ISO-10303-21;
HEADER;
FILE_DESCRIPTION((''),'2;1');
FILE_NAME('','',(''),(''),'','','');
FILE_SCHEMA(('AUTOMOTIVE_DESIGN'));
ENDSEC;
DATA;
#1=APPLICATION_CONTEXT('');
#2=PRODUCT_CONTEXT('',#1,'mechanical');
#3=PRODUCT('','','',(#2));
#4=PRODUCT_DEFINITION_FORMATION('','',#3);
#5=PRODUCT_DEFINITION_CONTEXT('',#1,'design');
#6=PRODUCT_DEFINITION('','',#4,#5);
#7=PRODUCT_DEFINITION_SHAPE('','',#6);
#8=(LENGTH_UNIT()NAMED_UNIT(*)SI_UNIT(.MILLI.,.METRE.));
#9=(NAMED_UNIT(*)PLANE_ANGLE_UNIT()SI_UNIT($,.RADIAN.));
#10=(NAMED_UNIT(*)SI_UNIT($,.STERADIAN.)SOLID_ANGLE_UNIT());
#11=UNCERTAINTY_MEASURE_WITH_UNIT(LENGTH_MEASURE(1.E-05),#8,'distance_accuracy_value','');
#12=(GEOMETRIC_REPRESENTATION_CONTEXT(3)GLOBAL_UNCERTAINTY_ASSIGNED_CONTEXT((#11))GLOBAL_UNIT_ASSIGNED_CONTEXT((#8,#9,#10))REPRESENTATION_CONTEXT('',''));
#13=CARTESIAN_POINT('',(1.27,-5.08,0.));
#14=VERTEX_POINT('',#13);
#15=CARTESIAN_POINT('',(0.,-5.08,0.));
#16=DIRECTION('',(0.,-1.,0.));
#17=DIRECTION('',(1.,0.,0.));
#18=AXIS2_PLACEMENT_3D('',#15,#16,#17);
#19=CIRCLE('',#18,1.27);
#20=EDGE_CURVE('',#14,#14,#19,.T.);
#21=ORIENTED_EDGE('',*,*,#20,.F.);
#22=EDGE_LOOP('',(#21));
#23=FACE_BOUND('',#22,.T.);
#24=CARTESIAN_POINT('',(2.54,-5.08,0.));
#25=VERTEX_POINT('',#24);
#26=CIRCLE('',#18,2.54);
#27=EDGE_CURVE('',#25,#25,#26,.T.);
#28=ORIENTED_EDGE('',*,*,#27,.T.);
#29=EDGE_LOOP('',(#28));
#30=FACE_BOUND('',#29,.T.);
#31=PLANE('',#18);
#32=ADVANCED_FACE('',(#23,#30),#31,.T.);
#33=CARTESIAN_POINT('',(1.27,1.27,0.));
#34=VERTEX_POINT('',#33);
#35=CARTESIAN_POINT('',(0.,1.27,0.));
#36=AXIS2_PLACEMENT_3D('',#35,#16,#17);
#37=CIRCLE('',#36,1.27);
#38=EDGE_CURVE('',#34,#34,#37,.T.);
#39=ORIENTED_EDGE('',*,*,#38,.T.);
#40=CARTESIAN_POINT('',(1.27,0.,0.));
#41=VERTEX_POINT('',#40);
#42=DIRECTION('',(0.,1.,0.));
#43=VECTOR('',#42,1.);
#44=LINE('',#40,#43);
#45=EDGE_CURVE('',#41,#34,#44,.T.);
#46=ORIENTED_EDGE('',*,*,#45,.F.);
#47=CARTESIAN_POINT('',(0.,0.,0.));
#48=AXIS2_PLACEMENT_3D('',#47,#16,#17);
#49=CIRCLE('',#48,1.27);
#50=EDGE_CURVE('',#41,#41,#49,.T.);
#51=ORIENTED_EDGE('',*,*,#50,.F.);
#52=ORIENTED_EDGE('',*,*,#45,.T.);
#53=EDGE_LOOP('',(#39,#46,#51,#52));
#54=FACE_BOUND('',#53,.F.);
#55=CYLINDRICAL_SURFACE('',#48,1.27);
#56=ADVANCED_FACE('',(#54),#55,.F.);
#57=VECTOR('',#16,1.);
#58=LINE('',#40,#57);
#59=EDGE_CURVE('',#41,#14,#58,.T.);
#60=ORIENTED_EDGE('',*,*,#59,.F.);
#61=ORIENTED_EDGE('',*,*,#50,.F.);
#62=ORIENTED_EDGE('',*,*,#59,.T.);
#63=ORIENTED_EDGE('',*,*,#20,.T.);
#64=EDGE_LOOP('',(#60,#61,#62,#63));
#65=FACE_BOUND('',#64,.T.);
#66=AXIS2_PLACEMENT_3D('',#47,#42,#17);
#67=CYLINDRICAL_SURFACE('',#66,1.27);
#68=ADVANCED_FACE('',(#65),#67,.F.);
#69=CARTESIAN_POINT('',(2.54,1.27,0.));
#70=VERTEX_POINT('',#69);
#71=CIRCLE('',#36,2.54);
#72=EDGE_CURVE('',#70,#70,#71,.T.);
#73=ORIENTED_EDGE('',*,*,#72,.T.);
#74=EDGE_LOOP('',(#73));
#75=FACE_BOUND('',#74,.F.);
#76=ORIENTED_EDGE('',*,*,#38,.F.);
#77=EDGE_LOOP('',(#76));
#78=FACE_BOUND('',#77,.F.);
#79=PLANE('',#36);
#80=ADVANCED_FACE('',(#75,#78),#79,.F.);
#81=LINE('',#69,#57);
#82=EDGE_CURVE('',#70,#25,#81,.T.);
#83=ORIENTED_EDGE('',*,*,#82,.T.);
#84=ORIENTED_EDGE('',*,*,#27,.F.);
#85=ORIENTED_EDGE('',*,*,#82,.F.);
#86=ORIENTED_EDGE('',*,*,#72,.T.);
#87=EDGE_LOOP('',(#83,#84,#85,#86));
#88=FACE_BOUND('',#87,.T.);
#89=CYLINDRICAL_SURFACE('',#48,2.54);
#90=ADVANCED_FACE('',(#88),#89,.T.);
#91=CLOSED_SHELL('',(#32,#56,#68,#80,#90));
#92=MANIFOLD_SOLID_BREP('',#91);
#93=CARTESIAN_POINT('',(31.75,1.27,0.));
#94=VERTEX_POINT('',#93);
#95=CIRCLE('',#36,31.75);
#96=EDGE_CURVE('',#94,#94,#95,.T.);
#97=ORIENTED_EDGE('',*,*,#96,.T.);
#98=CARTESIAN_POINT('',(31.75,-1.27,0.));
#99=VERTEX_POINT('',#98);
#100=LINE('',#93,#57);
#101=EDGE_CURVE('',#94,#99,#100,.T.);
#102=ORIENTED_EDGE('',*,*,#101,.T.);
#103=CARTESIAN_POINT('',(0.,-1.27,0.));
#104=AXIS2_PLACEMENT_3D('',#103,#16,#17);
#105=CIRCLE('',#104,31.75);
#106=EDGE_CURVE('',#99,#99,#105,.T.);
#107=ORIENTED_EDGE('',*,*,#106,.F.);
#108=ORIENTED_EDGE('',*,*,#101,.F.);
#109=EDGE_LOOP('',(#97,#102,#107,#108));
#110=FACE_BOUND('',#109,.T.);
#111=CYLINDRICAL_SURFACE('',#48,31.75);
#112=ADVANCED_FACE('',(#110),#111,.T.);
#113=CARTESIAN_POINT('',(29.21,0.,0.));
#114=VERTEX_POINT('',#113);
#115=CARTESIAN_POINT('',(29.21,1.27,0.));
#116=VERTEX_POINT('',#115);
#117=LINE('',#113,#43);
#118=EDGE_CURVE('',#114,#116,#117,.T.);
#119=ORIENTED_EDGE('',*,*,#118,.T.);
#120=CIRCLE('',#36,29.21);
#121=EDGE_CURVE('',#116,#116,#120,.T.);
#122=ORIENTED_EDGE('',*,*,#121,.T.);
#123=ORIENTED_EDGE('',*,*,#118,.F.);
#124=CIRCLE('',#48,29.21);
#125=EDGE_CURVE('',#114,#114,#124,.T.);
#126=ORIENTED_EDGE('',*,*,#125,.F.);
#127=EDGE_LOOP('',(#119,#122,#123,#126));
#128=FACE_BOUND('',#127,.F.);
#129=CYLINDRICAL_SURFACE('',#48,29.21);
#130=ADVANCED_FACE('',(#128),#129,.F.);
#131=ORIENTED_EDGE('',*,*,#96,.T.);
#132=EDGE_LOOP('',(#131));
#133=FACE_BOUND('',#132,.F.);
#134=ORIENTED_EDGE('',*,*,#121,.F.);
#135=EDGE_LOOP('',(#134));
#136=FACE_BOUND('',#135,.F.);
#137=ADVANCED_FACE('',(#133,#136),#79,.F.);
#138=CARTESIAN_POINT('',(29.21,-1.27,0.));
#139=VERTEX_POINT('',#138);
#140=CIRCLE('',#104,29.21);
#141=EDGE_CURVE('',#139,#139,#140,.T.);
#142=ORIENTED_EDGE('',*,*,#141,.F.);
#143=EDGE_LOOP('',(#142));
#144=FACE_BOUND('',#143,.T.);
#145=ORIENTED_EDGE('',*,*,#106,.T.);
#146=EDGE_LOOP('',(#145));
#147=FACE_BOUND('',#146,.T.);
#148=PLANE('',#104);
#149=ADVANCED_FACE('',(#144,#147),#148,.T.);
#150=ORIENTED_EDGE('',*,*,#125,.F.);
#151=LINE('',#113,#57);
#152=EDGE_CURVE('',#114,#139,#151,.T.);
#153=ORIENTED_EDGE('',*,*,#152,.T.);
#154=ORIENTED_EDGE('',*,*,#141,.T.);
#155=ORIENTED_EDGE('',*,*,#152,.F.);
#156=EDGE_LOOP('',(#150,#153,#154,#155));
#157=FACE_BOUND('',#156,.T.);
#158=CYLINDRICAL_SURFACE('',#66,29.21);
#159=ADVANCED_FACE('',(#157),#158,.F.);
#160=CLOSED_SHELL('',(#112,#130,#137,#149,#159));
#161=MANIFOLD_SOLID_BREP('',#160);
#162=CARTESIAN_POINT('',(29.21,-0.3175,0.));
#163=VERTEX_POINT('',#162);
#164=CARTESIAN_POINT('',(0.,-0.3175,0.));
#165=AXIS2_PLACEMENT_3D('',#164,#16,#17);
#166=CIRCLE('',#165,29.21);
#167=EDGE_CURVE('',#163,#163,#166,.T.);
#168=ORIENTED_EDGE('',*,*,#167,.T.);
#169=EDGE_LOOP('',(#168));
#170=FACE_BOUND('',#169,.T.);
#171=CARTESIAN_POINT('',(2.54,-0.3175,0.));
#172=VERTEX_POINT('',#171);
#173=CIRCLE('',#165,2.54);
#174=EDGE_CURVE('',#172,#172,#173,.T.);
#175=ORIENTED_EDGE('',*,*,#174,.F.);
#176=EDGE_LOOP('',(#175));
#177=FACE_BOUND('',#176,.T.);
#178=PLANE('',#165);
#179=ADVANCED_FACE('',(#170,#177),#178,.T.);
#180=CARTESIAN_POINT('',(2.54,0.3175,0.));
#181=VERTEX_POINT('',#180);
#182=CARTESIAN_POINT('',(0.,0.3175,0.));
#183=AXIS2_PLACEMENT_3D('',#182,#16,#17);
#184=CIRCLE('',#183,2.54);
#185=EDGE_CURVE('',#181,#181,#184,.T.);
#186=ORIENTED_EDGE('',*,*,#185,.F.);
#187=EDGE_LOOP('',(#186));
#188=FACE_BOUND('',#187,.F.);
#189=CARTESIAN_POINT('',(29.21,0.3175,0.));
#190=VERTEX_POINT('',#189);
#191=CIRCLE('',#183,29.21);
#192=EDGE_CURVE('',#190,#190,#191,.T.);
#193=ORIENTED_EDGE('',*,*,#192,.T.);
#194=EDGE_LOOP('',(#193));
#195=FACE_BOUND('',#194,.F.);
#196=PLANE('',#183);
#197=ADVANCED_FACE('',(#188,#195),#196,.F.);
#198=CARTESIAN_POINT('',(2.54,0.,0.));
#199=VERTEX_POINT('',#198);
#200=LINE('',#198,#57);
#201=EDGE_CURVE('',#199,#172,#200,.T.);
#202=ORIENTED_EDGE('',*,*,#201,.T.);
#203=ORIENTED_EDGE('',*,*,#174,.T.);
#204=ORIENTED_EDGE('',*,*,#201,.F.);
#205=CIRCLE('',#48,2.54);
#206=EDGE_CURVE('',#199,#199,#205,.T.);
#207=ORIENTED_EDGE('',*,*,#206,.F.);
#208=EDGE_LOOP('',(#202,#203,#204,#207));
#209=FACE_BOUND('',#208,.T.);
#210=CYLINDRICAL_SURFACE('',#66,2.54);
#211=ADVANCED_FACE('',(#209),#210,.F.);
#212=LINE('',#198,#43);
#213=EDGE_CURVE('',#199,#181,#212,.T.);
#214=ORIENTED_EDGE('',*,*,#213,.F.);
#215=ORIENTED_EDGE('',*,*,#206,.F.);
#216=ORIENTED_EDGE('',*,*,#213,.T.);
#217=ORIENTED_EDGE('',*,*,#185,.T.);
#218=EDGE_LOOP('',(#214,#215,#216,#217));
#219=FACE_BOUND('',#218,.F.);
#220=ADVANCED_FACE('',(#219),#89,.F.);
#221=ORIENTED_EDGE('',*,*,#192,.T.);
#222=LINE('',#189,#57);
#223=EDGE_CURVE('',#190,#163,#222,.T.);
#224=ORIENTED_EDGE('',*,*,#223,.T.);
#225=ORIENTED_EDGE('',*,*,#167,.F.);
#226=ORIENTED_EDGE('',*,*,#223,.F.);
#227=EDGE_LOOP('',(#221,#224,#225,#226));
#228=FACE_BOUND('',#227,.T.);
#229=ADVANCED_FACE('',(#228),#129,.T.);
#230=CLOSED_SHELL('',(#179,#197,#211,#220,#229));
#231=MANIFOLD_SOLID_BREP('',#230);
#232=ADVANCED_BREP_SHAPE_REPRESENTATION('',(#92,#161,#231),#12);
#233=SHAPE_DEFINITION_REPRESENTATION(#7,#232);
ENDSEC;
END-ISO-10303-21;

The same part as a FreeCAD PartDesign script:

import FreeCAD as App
import Part
import Sketcher
from FreeCAD import Vector
Q = App.Units.Quantity

doc = App.newDocument("Part")
body = doc.addObject("PartDesign::Body", "Body")

# Sketch on XZ plane
sketch1 = body.newObject("Sketcher::SketchObject", "Sketch")
sketch1.AttachmentSupport = (doc.getObject("XZ_Plane"), [""])
sketch1.MapMode = "FlatFace"
sketch1.addGeometry([
    Part.Circle(Vector(0, 0, 0), Vector(0, 0, 1), 2.54),
    Part.Circle(Vector(0, 0, 0), Vector(0, 0, 1), 1.27),
], False)
sketch1.addConstraint([
    Sketcher.Constraint("Coincident", 0, 3, -1, 1),
    Sketcher.Constraint("Coincident", 1, 3, -1, 1),
    Sketcher.Constraint("Diameter", 0, Q("0.2 in")),
    Sketcher.Constraint("Diameter", 1, Q("0.1 in")),
])
pad1 = body.newObject("PartDesign::Pad", "Pad")
pad1.Profile = sketch1
pad1.Type = "TwoLengths"
pad1.Length = Q("0.2 in")
pad1.Length2 = Q("0.05 in")
body2 = doc.addObject("PartDesign::Body", "Body001")

# Sketch on XZ plane
sketch2 = body2.newObject("Sketcher::SketchObject", "Sketch001")
sketch2.AttachmentSupport = (doc.getObject("XZ_Plane001"), [""])
sketch2.MapMode = "FlatFace"
sketch2.addGeometry([
    Part.Circle(Vector(0, 0, 0), Vector(0, 0, 1), 31.75),
    Part.Circle(Vector(0, 0, 0), Vector(0, 0, 1), 29.21),
], False)
sketch2.addConstraint([
    Sketcher.Constraint("Coincident", 0, 3, -1, 1),
    Sketcher.Constraint("Coincident", 1, 3, -1, 1),
    Sketcher.Constraint("Diameter", 0, Q("2.5 in")),
    Sketcher.Constraint("Diameter", 1, Q("2.3 in")),
])
pad2 = body2.newObject("PartDesign::Pad", "Pad001")
pad2.Profile = sketch2
pad2.Type = "TwoLengths"
pad2.Length = Q("0.05 in")
pad2.Length2 = Q("0.05 in")
body3 = doc.addObject("PartDesign::Body", "Body002")

# Sketch on XZ plane
sketch3 = body3.newObject("Sketcher::SketchObject", "Sketch002")
sketch3.AttachmentSupport = (doc.getObject("XZ_Plane002"), [""])
sketch3.MapMode = "FlatFace"
sketch3.addGeometry([
    Part.Circle(Vector(0, 0, 0), Vector(0, 0, 1), 29.21),
    Part.Circle(Vector(0, 0, 0), Vector(0, 0, 1), 2.54),
], False)
sketch3.addConstraint([
    Sketcher.Constraint("Coincident", 0, 3, -1, 1),
    Sketcher.Constraint("Coincident", 1, 3, -1, 1),
    Sketcher.Constraint("Diameter", 0, Q("2.3 in")),
    Sketcher.Constraint("Diameter", 1, Q("0.2 in")),
])
pad3 = body3.newObject("PartDesign::Pad", "Pad002")
pad3.Profile = sketch3
pad3.Type = "TwoLengths"
pad3.Length = Q("0.0125 in")
pad3.Length2 = Q("0.0125 in")

doc.recompute()
